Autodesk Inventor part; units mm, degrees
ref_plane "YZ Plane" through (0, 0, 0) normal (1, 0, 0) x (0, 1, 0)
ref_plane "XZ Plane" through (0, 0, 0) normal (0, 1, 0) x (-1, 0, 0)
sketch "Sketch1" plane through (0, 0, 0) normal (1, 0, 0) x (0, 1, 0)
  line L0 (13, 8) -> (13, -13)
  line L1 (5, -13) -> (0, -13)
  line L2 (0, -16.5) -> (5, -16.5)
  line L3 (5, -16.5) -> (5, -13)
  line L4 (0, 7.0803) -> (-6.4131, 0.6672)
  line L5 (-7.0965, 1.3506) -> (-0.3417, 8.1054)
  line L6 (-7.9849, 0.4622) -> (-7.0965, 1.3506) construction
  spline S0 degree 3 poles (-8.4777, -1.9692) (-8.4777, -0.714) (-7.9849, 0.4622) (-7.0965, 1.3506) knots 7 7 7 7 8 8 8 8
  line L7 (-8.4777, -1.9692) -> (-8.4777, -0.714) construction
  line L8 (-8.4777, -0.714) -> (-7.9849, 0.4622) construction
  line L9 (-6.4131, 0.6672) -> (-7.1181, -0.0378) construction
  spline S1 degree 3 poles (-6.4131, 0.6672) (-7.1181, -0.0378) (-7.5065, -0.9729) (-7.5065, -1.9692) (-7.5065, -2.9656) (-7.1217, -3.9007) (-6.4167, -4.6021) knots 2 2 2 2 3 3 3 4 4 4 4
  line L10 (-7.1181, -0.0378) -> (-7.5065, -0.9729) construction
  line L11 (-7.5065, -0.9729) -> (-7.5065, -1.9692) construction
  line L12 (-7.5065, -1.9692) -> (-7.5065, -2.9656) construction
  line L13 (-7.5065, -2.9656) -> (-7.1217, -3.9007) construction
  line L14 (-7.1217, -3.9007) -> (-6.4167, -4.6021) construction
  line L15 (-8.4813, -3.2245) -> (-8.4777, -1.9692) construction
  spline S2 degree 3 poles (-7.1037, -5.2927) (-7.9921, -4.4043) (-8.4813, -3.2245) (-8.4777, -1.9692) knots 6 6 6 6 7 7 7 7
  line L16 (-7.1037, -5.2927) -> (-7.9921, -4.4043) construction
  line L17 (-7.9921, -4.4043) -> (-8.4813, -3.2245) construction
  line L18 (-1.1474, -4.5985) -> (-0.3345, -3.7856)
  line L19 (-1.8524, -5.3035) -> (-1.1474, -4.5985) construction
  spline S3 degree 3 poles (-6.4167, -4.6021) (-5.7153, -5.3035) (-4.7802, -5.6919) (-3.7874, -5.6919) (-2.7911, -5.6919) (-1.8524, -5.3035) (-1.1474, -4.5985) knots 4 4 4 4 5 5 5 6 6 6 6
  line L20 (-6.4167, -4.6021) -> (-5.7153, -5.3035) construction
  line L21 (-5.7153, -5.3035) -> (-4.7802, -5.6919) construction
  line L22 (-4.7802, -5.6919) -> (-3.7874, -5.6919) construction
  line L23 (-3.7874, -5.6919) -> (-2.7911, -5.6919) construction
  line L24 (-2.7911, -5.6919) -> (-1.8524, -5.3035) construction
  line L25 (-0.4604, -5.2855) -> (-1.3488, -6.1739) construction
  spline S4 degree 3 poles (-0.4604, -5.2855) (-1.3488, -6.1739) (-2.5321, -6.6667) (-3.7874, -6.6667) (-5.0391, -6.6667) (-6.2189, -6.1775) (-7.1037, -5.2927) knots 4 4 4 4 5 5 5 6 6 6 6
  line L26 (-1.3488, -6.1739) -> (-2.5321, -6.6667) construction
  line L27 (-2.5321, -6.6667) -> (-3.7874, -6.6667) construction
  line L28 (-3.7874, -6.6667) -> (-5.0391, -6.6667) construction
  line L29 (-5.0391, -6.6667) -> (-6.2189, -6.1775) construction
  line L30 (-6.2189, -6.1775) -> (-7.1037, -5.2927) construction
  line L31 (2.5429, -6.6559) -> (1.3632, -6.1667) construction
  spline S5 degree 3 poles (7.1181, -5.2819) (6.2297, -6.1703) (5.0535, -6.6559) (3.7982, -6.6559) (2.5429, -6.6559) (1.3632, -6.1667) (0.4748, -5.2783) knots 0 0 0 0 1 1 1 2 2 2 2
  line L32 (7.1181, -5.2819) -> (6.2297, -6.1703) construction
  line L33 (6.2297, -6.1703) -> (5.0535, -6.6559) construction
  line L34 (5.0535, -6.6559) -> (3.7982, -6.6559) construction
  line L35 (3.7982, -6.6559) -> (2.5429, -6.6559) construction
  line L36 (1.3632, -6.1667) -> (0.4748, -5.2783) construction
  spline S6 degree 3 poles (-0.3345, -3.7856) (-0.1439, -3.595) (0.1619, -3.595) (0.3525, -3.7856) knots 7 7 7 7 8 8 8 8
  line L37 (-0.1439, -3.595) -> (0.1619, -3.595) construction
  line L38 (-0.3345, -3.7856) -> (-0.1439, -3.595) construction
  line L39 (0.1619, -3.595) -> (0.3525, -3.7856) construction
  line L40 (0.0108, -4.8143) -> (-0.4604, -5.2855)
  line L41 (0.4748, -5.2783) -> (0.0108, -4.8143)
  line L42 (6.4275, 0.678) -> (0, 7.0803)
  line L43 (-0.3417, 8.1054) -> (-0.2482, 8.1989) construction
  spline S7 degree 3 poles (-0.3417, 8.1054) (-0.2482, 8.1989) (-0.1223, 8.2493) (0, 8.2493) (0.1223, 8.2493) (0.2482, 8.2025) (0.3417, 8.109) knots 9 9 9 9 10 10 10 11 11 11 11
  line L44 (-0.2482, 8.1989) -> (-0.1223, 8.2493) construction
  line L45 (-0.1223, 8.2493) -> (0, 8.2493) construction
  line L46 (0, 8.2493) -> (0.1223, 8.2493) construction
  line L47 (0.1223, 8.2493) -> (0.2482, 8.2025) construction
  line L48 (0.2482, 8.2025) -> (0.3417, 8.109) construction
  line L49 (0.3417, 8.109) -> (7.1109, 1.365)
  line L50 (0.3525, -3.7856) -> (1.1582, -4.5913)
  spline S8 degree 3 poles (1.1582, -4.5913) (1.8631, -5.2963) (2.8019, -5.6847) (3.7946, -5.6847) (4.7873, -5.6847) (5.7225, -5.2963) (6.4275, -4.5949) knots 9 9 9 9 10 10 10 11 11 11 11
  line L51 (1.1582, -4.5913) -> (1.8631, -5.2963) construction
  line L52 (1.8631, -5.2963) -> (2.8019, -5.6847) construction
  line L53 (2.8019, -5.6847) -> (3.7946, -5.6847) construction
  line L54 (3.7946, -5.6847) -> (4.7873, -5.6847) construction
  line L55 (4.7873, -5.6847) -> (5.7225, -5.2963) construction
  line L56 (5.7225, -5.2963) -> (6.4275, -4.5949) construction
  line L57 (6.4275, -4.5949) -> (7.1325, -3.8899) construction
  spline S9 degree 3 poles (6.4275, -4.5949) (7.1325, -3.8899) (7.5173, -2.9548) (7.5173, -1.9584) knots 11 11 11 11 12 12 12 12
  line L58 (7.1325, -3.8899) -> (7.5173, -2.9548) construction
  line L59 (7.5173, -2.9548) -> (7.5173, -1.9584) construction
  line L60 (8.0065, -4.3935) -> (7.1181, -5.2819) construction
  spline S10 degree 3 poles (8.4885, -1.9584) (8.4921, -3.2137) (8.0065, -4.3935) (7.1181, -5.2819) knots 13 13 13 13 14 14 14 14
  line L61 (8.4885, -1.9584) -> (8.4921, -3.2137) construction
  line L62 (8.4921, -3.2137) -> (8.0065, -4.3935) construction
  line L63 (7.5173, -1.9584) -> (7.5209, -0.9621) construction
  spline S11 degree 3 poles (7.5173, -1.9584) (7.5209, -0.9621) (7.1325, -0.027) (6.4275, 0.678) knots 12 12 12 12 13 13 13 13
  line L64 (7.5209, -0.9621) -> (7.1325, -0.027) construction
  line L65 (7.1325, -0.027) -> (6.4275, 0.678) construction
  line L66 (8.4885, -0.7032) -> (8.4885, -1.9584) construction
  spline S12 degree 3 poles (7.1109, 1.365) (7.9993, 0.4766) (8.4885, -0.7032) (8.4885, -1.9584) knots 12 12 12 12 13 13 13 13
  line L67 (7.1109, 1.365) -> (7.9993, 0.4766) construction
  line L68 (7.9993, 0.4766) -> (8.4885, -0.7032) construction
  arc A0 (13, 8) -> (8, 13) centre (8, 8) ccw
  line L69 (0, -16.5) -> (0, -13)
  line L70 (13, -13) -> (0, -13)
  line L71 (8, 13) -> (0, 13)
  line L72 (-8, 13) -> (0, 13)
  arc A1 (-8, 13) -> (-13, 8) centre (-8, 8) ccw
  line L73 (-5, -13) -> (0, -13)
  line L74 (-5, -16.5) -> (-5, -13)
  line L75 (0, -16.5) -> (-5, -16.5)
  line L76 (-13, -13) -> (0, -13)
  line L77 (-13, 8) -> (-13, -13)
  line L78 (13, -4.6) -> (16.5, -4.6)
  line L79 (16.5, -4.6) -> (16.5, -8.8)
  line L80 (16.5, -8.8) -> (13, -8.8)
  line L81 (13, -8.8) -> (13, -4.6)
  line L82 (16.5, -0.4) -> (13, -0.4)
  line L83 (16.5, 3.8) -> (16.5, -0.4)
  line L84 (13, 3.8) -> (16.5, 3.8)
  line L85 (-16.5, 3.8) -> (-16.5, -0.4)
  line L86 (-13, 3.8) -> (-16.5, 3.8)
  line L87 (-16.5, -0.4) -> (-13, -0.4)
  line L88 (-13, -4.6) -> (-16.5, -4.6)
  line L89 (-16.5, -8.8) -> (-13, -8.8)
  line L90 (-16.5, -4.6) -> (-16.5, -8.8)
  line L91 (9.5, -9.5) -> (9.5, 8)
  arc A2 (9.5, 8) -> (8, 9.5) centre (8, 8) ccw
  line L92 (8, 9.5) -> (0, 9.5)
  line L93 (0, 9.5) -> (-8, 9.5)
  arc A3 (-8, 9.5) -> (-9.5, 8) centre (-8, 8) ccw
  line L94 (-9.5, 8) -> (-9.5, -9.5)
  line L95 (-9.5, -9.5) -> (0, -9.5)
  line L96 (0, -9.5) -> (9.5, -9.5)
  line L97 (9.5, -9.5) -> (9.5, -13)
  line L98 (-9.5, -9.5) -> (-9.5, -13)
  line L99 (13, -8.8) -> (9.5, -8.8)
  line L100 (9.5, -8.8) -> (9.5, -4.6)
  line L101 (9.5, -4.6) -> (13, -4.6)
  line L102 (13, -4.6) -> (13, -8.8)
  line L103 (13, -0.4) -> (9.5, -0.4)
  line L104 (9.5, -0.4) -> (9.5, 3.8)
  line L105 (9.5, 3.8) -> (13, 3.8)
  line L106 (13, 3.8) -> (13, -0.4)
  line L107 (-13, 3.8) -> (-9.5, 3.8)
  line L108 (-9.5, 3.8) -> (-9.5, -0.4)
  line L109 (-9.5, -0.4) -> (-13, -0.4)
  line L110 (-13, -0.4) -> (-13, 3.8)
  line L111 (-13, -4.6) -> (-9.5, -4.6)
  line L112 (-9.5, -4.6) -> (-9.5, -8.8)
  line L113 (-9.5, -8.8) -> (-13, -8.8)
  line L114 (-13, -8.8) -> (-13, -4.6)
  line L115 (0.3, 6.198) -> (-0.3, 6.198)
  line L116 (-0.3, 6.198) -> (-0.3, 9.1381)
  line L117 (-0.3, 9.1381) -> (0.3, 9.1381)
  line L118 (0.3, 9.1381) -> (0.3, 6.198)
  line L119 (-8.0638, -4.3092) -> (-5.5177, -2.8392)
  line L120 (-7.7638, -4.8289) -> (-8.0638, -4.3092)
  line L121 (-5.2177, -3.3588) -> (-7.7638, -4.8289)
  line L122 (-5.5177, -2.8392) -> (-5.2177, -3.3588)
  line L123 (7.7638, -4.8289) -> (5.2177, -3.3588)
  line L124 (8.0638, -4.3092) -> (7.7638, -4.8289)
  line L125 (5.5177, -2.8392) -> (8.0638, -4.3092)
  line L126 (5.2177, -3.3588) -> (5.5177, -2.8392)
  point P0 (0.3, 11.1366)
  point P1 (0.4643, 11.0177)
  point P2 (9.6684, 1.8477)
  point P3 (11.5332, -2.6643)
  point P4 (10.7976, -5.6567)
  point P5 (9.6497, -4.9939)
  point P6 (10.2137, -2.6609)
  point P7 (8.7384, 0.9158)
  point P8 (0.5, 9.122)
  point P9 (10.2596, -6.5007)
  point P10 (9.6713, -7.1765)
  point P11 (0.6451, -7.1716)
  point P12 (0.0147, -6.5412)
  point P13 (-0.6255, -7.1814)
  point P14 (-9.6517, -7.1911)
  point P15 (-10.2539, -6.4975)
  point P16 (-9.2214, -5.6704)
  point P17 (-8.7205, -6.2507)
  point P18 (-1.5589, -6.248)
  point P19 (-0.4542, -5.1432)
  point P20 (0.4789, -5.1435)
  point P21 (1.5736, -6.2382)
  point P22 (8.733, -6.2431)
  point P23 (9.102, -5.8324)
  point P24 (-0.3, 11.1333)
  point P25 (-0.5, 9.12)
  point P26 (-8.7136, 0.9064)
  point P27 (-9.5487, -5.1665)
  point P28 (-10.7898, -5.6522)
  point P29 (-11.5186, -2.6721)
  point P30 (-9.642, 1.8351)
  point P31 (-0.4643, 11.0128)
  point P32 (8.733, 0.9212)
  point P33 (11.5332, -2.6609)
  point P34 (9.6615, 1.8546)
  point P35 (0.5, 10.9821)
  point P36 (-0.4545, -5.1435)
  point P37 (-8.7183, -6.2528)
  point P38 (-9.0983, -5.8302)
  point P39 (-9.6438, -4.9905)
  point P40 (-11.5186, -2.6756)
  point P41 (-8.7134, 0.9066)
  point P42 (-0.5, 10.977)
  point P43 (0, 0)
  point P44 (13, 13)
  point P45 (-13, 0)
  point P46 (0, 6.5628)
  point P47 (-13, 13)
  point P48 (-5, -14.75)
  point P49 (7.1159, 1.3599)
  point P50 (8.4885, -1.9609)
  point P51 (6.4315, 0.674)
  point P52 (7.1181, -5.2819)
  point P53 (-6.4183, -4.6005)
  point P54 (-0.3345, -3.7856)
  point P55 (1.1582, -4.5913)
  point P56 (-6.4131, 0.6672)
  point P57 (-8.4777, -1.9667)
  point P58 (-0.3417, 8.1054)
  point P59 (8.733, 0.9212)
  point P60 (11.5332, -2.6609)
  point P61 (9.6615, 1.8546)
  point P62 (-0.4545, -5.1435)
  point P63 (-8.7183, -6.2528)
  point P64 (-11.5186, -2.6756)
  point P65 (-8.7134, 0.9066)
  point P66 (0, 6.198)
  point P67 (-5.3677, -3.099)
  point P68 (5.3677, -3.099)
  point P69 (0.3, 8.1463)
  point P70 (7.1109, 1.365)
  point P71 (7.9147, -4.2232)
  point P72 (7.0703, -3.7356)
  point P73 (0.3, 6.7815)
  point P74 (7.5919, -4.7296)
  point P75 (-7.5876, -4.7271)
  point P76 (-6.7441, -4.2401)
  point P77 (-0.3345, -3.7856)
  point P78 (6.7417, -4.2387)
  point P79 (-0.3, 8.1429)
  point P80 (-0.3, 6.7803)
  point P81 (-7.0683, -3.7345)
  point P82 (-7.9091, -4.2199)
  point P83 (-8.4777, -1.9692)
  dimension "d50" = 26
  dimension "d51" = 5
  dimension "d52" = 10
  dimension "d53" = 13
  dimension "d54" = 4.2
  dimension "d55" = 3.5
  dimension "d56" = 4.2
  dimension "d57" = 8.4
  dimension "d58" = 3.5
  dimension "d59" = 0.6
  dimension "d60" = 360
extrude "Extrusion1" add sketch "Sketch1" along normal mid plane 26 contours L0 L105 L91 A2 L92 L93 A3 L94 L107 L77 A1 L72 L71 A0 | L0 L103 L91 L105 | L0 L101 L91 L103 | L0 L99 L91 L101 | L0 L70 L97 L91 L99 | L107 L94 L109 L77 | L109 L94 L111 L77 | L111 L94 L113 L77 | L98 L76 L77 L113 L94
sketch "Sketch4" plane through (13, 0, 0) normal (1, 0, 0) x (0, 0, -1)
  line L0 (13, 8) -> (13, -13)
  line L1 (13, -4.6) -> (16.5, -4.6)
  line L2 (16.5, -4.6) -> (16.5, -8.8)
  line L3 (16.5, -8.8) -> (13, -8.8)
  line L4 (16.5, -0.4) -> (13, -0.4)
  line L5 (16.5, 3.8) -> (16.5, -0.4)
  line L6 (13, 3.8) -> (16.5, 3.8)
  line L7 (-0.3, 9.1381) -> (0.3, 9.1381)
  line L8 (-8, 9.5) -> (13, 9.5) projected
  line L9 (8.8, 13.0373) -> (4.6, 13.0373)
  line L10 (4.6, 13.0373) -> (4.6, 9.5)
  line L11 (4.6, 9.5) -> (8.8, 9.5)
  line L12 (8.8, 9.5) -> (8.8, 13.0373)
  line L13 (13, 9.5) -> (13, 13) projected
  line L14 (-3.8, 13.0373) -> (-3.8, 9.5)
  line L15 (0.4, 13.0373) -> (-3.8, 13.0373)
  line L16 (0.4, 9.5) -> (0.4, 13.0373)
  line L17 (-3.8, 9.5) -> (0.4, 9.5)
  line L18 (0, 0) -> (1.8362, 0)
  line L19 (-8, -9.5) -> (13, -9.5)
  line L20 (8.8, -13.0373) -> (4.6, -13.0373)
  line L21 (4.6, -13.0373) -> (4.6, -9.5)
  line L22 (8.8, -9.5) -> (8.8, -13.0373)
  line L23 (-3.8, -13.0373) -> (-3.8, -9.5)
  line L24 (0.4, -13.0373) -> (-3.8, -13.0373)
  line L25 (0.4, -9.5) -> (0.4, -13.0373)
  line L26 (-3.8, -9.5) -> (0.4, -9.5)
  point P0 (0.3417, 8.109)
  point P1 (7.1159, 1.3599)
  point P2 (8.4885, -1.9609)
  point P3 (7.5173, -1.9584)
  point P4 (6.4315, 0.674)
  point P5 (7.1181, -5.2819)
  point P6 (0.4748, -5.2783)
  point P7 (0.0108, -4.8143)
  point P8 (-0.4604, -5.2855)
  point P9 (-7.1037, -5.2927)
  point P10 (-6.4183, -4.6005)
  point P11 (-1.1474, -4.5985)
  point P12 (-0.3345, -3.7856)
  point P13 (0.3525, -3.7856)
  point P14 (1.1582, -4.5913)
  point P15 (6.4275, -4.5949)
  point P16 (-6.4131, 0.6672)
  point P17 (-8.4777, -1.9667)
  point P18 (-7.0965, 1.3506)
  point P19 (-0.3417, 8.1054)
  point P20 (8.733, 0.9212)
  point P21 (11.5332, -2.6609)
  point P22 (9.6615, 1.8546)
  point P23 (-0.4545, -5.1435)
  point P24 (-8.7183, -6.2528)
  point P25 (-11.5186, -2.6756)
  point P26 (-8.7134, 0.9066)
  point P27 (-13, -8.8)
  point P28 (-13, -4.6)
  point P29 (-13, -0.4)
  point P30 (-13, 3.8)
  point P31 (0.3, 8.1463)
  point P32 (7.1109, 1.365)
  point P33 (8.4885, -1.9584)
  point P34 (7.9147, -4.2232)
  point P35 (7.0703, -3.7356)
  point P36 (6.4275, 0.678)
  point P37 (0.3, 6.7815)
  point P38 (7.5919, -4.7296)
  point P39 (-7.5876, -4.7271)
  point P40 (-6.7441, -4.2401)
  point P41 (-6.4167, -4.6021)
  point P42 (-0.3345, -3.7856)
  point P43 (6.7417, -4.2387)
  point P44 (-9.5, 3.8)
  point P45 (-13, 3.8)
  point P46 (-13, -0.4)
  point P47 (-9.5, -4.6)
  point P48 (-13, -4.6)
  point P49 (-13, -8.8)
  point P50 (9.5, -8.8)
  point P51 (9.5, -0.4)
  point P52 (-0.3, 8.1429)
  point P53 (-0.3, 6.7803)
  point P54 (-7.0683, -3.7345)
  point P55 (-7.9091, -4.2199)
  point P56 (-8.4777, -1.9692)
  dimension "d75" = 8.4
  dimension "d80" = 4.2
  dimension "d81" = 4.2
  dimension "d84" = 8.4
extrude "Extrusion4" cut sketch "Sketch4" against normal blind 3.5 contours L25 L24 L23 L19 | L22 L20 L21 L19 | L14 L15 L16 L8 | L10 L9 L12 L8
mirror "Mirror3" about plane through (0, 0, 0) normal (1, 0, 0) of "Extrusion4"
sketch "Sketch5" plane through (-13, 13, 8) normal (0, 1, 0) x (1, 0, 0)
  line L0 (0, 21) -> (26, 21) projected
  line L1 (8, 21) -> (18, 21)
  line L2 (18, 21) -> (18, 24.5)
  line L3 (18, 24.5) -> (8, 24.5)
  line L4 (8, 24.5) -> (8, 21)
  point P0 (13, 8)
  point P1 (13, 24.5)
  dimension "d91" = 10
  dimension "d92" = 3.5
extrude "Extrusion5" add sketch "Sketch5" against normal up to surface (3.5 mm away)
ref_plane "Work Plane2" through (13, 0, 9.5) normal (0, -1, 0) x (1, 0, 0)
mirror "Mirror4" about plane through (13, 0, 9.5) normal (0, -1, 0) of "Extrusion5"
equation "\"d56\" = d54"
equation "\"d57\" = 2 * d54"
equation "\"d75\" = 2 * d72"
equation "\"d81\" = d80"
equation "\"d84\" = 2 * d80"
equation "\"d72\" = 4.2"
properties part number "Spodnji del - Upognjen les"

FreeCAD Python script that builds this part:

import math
import FreeCAD as App
import Part
import Sketcher

V = App.Vector
Q = App.Units.Quantity

doc = App.newDocument("Part")
body = doc.addObject("PartDesign::Body", "Body")

# Sketch on YZ plane
sketch1 = body.newObject("Sketcher::SketchObject", "Sketch")
sketch1.AttachmentSupport = (doc.getObject("YZ_Plane"), [""])
sketch1.MapMode = "FlatFace"
sketch1.addGeometry([
    Part.ArcOfCircle(Part.Circle(V(8, 8, 0), V(0, 0, 1), 5), math.radians(0), math.radians(90)),  # 0
    Part.LineSegment(V(8, 13, 0), V(-8, 13, 0)),  # 1
    Part.ArcOfCircle(Part.Circle(V(-8, 8, 0), V(0, 0, 1), 5), math.radians(90), math.radians(180)),  # 2
    Part.LineSegment(V(-13, 8, 0), V(-13, -13, 0)),  # 3
    Part.LineSegment(V(-13, -13, 0), V(-9.5, -13, 0)),  # 4
    Part.LineSegment(V(-9.5, -13, 0), V(-9.5, 8, 0)),  # 5
    Part.ArcOfCircle(Part.Circle(V(-8, 8, 0), V(0, 0, 1), 1.5), math.radians(90), math.radians(180)),  # 6
    Part.LineSegment(V(-8, 9.5, 0), V(8, 9.5, 0)),  # 7
    Part.ArcOfCircle(Part.Circle(V(8, 8, 0), V(0, 0, 1), 1.5), math.radians(0), math.radians(90)),  # 8
    Part.LineSegment(V(9.5, 8, 0), V(9.5, -13, 0)),  # 9
    Part.LineSegment(V(9.5, -13, 0), V(13, -13, 0)),  # 10
    Part.LineSegment(V(13, -13, 0), V(13, 8, 0)),  # 11
], False)
sketch1.addConstraint([
    Sketcher.Constraint("Tangent", 0, 2, 1, 1),
    Sketcher.Constraint("Tangent", 1, 2, 2, 1),
    Sketcher.Constraint("Tangent", 2, 2, 3, 1),
    Sketcher.Constraint("Coincident", 3, 2, 4, 1),
    Sketcher.Constraint("Coincident", 4, 2, 5, 1),
    Sketcher.Constraint("Tangent", 5, 2, 6, 2),
    Sketcher.Constraint("Tangent", 6, 1, 7, 1),
    Sketcher.Constraint("Tangent", 7, 2, 8, 2),
    Sketcher.Constraint("Tangent", 8, 1, 9, 1),
    Sketcher.Constraint("Coincident", 9, 2, 10, 1),
    Sketcher.Constraint("Coincident", 10, 2, 11, 1),
    Sketcher.Constraint("Tangent", 11, 2, 0, 1),
    Sketcher.Constraint("Horizontal", 1),
    Sketcher.Constraint("Vertical", 3),
    Sketcher.Constraint("Horizontal", 4),
    Sketcher.Constraint("Vertical", 5),
    Sketcher.Constraint("Horizontal", 7),
    Sketcher.Constraint("Vertical", 9),
    Sketcher.Constraint("Horizontal", 10),
    Sketcher.Constraint("Vertical", 11),
    Sketcher.Constraint("Coincident", 6, 3, 2, 3),
    Sketcher.Constraint("Coincident", 8, 3, 0, 3),
    Sketcher.Constraint("Equal", 0, 2),
    Sketcher.Constraint("Symmetric", 4, 2, 9, 2, -2),
    Sketcher.Constraint("Radius", 0, Q("5 mm")),
    Sketcher.Constraint("DistanceX", 4, 1, 4, 2, Q("3.5 mm")),
    Sketcher.Constraint("DistanceY", -1, 1, 0, 2, Q("13 mm")),
    Sketcher.Constraint("DistanceX", 2, 2, -1, 1, Q("13 mm")),
    Sketcher.Constraint("DistanceY", 3, 2, -1, 1, Q("13 mm")),
])
pad1 = body.newObject("PartDesign::Pad", "Pad")
pad1.Profile = sketch1
pad1.Length = 26
pad1.Midplane = True

# Sketch on YZ plane
sketch2 = body.newObject("Sketcher::SketchObject", "Sketch001")
sketch2.AttachmentSupport = (doc.getObject("YZ_Plane"), [""])
sketch2.MapMode = "FlatFace"
sketch2.AttachmentOffset = App.Placement(V(0, 0, 13), App.Rotation())
sketch2.addGeometry([
    Part.LineSegment(V(-13, -0.4, 0), V(-9.5, -0.4, 0)),  # 0
    Part.LineSegment(V(-9.5, -0.4, 0), V(-9.5, 3.8, 0)),  # 1
    Part.LineSegment(V(-9.5, 3.8, 0), V(-13, 3.8, 0)),  # 2
    Part.LineSegment(V(-13, 3.8, 0), V(-13, -0.4, 0)),  # 3
    Part.LineSegment(V(-13, -8.8, 0), V(-9.5, -8.8, 0)),  # 4
    Part.LineSegment(V(-9.5, -8.8, 0), V(-9.5, -4.6, 0)),  # 5
    Part.LineSegment(V(-9.5, -4.6, 0), V(-13, -4.6, 0)),  # 6
    Part.LineSegment(V(-13, -4.6, 0), V(-13, -8.8, 0)),  # 7
    Part.LineSegment(V(13, 3.8, 0), V(9.5, 3.8, 0)),  # 8
    Part.LineSegment(V(9.5, 3.8, 0), V(9.5, -0.4, 0)),  # 9
    Part.LineSegment(V(9.5, -0.4, 0), V(13, -0.4, 0)),  # 10
    Part.LineSegment(V(13, -0.4, 0), V(13, 3.8, 0)),  # 11
    Part.LineSegment(V(13, -4.6, 0), V(9.5, -4.6, 0)),  # 12
    Part.LineSegment(V(9.5, -4.6, 0), V(9.5, -8.8, 0)),  # 13
    Part.LineSegment(V(9.5, -8.8, 0), V(13, -8.8, 0)),  # 14
    Part.LineSegment(V(13, -8.8, 0), V(13, -4.6, 0)),  # 15
], False)
sketch2.addConstraint([
    Sketcher.Constraint("Coincident", 0, 2, 1, 1),
    Sketcher.Constraint("Coincident", 1, 2, 2, 1),
    Sketcher.Constraint("Coincident", 2, 2, 3, 1),
    Sketcher.Constraint("Coincident", 3, 2, 0, 1),
    Sketcher.Constraint("Coincident", 4, 2, 5, 1),
    Sketcher.Constraint("Coincident", 5, 2, 6, 1),
    Sketcher.Constraint("Coincident", 6, 2, 7, 1),
    Sketcher.Constraint("Coincident", 7, 2, 4, 1),
    Sketcher.Constraint("Coincident", 8, 2, 9, 1),
    Sketcher.Constraint("Coincident", 9, 2, 10, 1),
    Sketcher.Constraint("Coincident", 10, 2, 11, 1),
    Sketcher.Constraint("Coincident", 11, 2, 8, 1),
    Sketcher.Constraint("Coincident", 12, 2, 13, 1),
    Sketcher.Constraint("Coincident", 13, 2, 14, 1),
    Sketcher.Constraint("Coincident", 14, 2, 15, 1),
    Sketcher.Constraint("Coincident", 15, 2, 12, 1),
    Sketcher.Constraint("Horizontal", 0),
    Sketcher.Constraint("Vertical", 1),
    Sketcher.Constraint("Horizontal", 2),
    Sketcher.Constraint("Vertical", 3),
    Sketcher.Constraint("Horizontal", 4),
    Sketcher.Constraint("Vertical", 5),
    Sketcher.Constraint("Horizontal", 6),
    Sketcher.Constraint("Vertical", 7),
    Sketcher.Constraint("Horizontal", 8),
    Sketcher.Constraint("Vertical", 9),
    Sketcher.Constraint("Horizontal", 10),
    Sketcher.Constraint("Vertical", 11),
    Sketcher.Constraint("Horizontal", 12),
    Sketcher.Constraint("Vertical", 13),
    Sketcher.Constraint("Horizontal", 14),
    Sketcher.Constraint("Vertical", 15),
    Sketcher.Constraint("Symmetric", 1, 2, 8, 2, -2),
    Sketcher.Constraint("Symmetric", 3, 2, 10, 2, -2),
    Sketcher.Constraint("Symmetric", 5, 2, 12, 2, -2),
    Sketcher.Constraint("Symmetric", 7, 2, 14, 2, -2),
    Sketcher.Constraint("Vertical", 1, 2, 4, 2),
    Sketcher.Constraint("Vertical", 3, 2, 6, 2),
    Sketcher.Constraint("Equal", 3, 5),
    Sketcher.Constraint("DistanceY", 1, 1, 1, 2, Q("4.2 mm")),
    Sketcher.Constraint("DistanceY", 4, 2, 0, 2, Q("8.4 mm")),
    Sketcher.Constraint("DistanceX", 1, 2, 8, 2, Q("19 mm")),
    Sketcher.Constraint("DistanceY", 0, 2, -1, 1, Q("0.4 mm")),
    Sketcher.Constraint("DistanceX", 0, 1, 0, 2, Q("3.5373 mm")),
])
pocket1 = body.newObject("PartDesign::Pocket", "Pocket")
pocket1.Profile = sketch2
pocket1.Length = 3.5
doc.recompute()

mirrored = body.newObject("PartDesign::Mirrored", "Mirrored")
mirrored.Originals = [pocket1]
mirrored.MirrorPlane = (doc.getObject("YZ_Plane"), [""])
body.Tip = mirrored

# Sketch on XZ plane
sketch3 = body.newObject("Sketcher::SketchObject", "Sketch002")
sketch3.AttachmentSupport = (doc.getObject("XZ_Plane"), [""])
sketch3.MapMode = "FlatFace"
sketch3.AttachmentOffset = App.Placement(V(0, 0, -13), App.Rotation())
sketch3.addGeometry([
    Part.LineSegment(V(-5, -16.5, 0), V(-5, -13, 0)),
    Part.LineSegment(V(-5, -13, 0), V(5, -13, 0)),
    Part.LineSegment(V(5, -13, 0), V(5, -16.5, 0)),
    Part.LineSegment(V(5, -16.5, 0), V(-5, -16.5, 0)),
], False)
sketch3.addConstraint([
    Sketcher.Constraint("Coincident", 0, 2, 1, 1),
    Sketcher.Constraint("Coincident", 1, 2, 2, 1),
    Sketcher.Constraint("Coincident", 2, 2, 3, 1),
    Sketcher.Constraint("Coincident", 3, 2, 0, 1),
    Sketcher.Constraint("Vertical", 0),
    Sketcher.Constraint("Horizontal", 1),
    Sketcher.Constraint("Vertical", 2),
    Sketcher.Constraint("Horizontal", 3),
    Sketcher.Constraint("DistanceX", 1, 1, 1, 2, Q("10 mm")),
    Sketcher.Constraint("DistanceY", 0, 1, 0, 2, Q("3.5 mm")),
    Sketcher.Constraint("DistanceX", 0, 2, -1, 1, Q("5 mm")),
    Sketcher.Constraint("DistanceY", 0, 2, -1, 1, Q("13 mm")),
])
pad2 = body.newObject("PartDesign::Pad", "Pad001")
pad2.Profile = sketch3
pad2.Length = 3.5
doc.recompute()

mirrored2 = body.newObject("PartDesign::Mirrored", "Mirrored001")
mirrored2.Originals = [pad2]
mirrored2.MirrorPlane = (doc.getObject("XZ_Plane"), [""])
body.Tip = mirrored2

doc.recompute()
